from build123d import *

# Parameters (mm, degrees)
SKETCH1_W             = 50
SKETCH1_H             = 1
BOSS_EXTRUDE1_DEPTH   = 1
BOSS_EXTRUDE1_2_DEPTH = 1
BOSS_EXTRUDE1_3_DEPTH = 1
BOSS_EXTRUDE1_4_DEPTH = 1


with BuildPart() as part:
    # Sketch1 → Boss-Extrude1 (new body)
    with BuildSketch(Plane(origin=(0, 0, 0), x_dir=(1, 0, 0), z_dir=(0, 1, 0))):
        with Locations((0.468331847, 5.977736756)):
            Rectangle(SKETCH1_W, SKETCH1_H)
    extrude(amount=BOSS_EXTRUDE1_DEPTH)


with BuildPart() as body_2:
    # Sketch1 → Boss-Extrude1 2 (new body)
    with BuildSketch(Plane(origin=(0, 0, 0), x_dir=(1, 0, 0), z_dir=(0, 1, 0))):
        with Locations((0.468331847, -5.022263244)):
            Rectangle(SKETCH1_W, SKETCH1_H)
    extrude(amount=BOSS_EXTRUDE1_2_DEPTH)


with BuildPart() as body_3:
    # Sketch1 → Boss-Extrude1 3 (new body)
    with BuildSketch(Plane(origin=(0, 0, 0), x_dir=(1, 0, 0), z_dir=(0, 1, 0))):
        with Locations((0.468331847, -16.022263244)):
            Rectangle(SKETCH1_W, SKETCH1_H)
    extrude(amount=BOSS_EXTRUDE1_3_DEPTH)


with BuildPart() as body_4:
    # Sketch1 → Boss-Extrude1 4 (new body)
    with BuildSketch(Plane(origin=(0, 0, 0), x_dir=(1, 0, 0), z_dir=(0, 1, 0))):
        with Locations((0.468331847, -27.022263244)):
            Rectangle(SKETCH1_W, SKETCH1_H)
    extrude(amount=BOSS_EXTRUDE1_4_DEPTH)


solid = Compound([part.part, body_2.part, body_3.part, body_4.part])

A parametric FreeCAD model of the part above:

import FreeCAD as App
import Part
import Sketcher

V = App.Vector

doc = App.newDocument("Part")
body = doc.addObject("PartDesign::Body", "Body")

# Sketch on XZ plane
sketch1 = doc.addObject("Sketcher::SketchObject", "Sketch")
body.addObject(sketch1)
sketch1.AttachmentSupport = (doc.XZ_Plane, [""])
sketch1.MapMode = "FlatFace"
sketch1.addGeometry([
    Part.LineSegment(V(-24.5, -6.5, 0), V(-24.5, -5.5, 0)),
    Part.LineSegment(V(-24.5, -5.5, 0), V(25.5, -5.5, 0)),
    Part.LineSegment(V(25.5, -5.5, 0), V(25.5, -6.5, 0)),
    Part.LineSegment(V(25.5, -6.5, 0), V(-24.5, -6.5, 0)),
], False)
sketch1.addConstraint([
    Sketcher.Constraint("Coincident", 0, 2, 1, 1),
    Sketcher.Constraint("Coincident", 1, 2, 2, 1),
    Sketcher.Constraint("Coincident", 2, 2, 3, 1),
    Sketcher.Constraint("Coincident", 3, 2, 0, 1),
    Sketcher.Constraint("Vertical", 0),
    Sketcher.Constraint("Horizontal", 1),
    Sketcher.Constraint("Vertical", 2),
    Sketcher.Constraint("Horizontal", 3),
    Sketcher.Constraint("DistanceX", 1, 1, 1, 2, 50.0),
    Sketcher.Constraint("DistanceY", 0, 1, 0, 2, 1.0),
    Sketcher.Constraint("DistanceX", 0, 2, -1, 1, 24.531668),
    Sketcher.Constraint("DistanceY", 0, 2, -1, 1, 5.477737),
])
pad1 = doc.addObject("PartDesign::Pad", "Pad")
body.addObject(pad1)
pad1.Profile = sketch1
pad1.Length = 1
pad1.Reversed = True
body2 = doc.addObject("PartDesign::Body", "Body001")

# Sketch on XZ plane
sketch2 = doc.addObject("Sketcher::SketchObject", "Sketch001")
body2.addObject(sketch2)
sketch2.AttachmentSupport = (doc.getObject("XZ_Plane001"), [""])
sketch2.MapMode = "FlatFace"
sketch2.addGeometry([
    Part.LineSegment(V(-24.5, 4.5, 0), V(-24.5, 5.5, 0)),
    Part.LineSegment(V(-24.5, 5.5, 0), V(25.5, 5.5, 0)),
    Part.LineSegment(V(25.5, 5.5, 0), V(25.5, 4.5, 0)),
    Part.LineSegment(V(25.5, 4.5, 0), V(-24.5, 4.5, 0)),
], False)
sketch2.addConstraint([
    Sketcher.Constraint("Coincident", 0, 2, 1, 1),
    Sketcher.Constraint("Coincident", 1, 2, 2, 1),
    Sketcher.Constraint("Coincident", 2, 2, 3, 1),
    Sketcher.Constraint("Coincident", 3, 2, 0, 1),
    Sketcher.Constraint("Vertical", 0),
    Sketcher.Constraint("Horizontal", 1),
    Sketcher.Constraint("Vertical", 2),
    Sketcher.Constraint("Horizontal", 3),
    Sketcher.Constraint("DistanceX", 1, 1, 1, 2, 50.0),
    Sketcher.Constraint("DistanceY", 0, 1, 0, 2, 1.0),
    Sketcher.Constraint("DistanceX", 0, 2, -1, 1, 24.531668),
    Sketcher.Constraint("DistanceY", -1, 1, 0, 2, 5.522263),
])
pad2 = doc.addObject("PartDesign::Pad", "Pad001")
body2.addObject(pad2)
pad2.Profile = sketch2
pad2.Length = 1
pad2.Reversed = True
body3 = doc.addObject("PartDesign::Body", "Body002")

# Sketch on XZ plane
sketch3 = doc.addObject("Sketcher::SketchObject", "Sketch002")
body3.addObject(sketch3)
sketch3.AttachmentSupport = (doc.getObject("XZ_Plane002"), [""])
sketch3.MapMode = "FlatFace"
sketch3.addGeometry([
    Part.LineSegment(V(-24.5, 15.5, 0), V(-24.5, 16.5, 0)),
    Part.LineSegment(V(-24.5, 16.5, 0), V(25.5, 16.5, 0)),
    Part.LineSegment(V(25.5, 16.5, 0), V(25.5, 15.5, 0)),
    Part.LineSegment(V(25.5, 15.5, 0), V(-24.5, 15.5, 0)),
], False)
sketch3.addConstraint([
    Sketcher.Constraint("Coincident", 0, 2, 1, 1),
    Sketcher.Constraint("Coincident", 1, 2, 2, 1),
    Sketcher.Constraint("Coincident", 2, 2, 3, 1),
    Sketcher.Constraint("Coincident", 3, 2, 0, 1),
    Sketcher.Constraint("Vertical", 0),
    Sketcher.Constraint("Horizontal", 1),
    Sketcher.Constraint("Vertical", 2),
    Sketcher.Constraint("Horizontal", 3),
    Sketcher.Constraint("DistanceX", 1, 1, 1, 2, 50.0),
    Sketcher.Constraint("DistanceY", 0, 1, 0, 2, 1.0),
    Sketcher.Constraint("DistanceX", 0, 2, -1, 1, 24.531668),
    Sketcher.Constraint("DistanceY", -1, 1, 0, 2, 16.522263),
])
pad3 = doc.addObject("PartDesign::Pad", "Pad002")
body3.addObject(pad3)
pad3.Profile = sketch3
pad3.Length = 1
pad3.Reversed = True
body4 = doc.addObject("PartDesign::Body", "Body003")

# Sketch on XZ plane
sketch4 = doc.addObject("Sketcher::SketchObject", "Sketch003")
body4.addObject(sketch4)
sketch4.AttachmentSupport = (doc.getObject("XZ_Plane003"), [""])
sketch4.MapMode = "FlatFace"
sketch4.addGeometry([
    Part.LineSegment(V(-24.5, 26.5, 0), V(-24.5, 27.5, 0)),
    Part.LineSegment(V(-24.5, 27.5, 0), V(25.5, 27.5, 0)),
    Part.LineSegment(V(25.5, 27.5, 0), V(25.5, 26.5, 0)),
    Part.LineSegment(V(25.5, 26.5, 0), V(-24.5, 26.5, 0)),
], False)
sketch4.addConstraint([
    Sketcher.Constraint("Coincident", 0, 2, 1, 1),
    Sketcher.Constraint("Coincident", 1, 2, 2, 1),
    Sketcher.Constraint("Coincident", 2, 2, 3, 1),
    Sketcher.Constraint("Coincident", 3, 2, 0, 1),
    Sketcher.Constraint("Vertical", 0),
    Sketcher.Constraint("Horizontal", 1),
    Sketcher.Constraint("Vertical", 2),
    Sketcher.Constraint("Horizontal", 3),
    Sketcher.Constraint("DistanceX", 1, 1, 1, 2, 50.0),
    Sketcher.Constraint("DistanceY", 0, 1, 0, 2, 1.0),
    Sketcher.Constraint("DistanceX", 0, 2, -1, 1, 24.531668),
    Sketcher.Constraint("DistanceY", -1, 1, 0, 2, 27.522263),
])
pad4 = doc.addObject("PartDesign::Pad", "Pad003")
body4.addObject(pad4)
pad4.Profile = sketch4
pad4.Length = 1
pad4.Reversed = True

doc.recompute()
